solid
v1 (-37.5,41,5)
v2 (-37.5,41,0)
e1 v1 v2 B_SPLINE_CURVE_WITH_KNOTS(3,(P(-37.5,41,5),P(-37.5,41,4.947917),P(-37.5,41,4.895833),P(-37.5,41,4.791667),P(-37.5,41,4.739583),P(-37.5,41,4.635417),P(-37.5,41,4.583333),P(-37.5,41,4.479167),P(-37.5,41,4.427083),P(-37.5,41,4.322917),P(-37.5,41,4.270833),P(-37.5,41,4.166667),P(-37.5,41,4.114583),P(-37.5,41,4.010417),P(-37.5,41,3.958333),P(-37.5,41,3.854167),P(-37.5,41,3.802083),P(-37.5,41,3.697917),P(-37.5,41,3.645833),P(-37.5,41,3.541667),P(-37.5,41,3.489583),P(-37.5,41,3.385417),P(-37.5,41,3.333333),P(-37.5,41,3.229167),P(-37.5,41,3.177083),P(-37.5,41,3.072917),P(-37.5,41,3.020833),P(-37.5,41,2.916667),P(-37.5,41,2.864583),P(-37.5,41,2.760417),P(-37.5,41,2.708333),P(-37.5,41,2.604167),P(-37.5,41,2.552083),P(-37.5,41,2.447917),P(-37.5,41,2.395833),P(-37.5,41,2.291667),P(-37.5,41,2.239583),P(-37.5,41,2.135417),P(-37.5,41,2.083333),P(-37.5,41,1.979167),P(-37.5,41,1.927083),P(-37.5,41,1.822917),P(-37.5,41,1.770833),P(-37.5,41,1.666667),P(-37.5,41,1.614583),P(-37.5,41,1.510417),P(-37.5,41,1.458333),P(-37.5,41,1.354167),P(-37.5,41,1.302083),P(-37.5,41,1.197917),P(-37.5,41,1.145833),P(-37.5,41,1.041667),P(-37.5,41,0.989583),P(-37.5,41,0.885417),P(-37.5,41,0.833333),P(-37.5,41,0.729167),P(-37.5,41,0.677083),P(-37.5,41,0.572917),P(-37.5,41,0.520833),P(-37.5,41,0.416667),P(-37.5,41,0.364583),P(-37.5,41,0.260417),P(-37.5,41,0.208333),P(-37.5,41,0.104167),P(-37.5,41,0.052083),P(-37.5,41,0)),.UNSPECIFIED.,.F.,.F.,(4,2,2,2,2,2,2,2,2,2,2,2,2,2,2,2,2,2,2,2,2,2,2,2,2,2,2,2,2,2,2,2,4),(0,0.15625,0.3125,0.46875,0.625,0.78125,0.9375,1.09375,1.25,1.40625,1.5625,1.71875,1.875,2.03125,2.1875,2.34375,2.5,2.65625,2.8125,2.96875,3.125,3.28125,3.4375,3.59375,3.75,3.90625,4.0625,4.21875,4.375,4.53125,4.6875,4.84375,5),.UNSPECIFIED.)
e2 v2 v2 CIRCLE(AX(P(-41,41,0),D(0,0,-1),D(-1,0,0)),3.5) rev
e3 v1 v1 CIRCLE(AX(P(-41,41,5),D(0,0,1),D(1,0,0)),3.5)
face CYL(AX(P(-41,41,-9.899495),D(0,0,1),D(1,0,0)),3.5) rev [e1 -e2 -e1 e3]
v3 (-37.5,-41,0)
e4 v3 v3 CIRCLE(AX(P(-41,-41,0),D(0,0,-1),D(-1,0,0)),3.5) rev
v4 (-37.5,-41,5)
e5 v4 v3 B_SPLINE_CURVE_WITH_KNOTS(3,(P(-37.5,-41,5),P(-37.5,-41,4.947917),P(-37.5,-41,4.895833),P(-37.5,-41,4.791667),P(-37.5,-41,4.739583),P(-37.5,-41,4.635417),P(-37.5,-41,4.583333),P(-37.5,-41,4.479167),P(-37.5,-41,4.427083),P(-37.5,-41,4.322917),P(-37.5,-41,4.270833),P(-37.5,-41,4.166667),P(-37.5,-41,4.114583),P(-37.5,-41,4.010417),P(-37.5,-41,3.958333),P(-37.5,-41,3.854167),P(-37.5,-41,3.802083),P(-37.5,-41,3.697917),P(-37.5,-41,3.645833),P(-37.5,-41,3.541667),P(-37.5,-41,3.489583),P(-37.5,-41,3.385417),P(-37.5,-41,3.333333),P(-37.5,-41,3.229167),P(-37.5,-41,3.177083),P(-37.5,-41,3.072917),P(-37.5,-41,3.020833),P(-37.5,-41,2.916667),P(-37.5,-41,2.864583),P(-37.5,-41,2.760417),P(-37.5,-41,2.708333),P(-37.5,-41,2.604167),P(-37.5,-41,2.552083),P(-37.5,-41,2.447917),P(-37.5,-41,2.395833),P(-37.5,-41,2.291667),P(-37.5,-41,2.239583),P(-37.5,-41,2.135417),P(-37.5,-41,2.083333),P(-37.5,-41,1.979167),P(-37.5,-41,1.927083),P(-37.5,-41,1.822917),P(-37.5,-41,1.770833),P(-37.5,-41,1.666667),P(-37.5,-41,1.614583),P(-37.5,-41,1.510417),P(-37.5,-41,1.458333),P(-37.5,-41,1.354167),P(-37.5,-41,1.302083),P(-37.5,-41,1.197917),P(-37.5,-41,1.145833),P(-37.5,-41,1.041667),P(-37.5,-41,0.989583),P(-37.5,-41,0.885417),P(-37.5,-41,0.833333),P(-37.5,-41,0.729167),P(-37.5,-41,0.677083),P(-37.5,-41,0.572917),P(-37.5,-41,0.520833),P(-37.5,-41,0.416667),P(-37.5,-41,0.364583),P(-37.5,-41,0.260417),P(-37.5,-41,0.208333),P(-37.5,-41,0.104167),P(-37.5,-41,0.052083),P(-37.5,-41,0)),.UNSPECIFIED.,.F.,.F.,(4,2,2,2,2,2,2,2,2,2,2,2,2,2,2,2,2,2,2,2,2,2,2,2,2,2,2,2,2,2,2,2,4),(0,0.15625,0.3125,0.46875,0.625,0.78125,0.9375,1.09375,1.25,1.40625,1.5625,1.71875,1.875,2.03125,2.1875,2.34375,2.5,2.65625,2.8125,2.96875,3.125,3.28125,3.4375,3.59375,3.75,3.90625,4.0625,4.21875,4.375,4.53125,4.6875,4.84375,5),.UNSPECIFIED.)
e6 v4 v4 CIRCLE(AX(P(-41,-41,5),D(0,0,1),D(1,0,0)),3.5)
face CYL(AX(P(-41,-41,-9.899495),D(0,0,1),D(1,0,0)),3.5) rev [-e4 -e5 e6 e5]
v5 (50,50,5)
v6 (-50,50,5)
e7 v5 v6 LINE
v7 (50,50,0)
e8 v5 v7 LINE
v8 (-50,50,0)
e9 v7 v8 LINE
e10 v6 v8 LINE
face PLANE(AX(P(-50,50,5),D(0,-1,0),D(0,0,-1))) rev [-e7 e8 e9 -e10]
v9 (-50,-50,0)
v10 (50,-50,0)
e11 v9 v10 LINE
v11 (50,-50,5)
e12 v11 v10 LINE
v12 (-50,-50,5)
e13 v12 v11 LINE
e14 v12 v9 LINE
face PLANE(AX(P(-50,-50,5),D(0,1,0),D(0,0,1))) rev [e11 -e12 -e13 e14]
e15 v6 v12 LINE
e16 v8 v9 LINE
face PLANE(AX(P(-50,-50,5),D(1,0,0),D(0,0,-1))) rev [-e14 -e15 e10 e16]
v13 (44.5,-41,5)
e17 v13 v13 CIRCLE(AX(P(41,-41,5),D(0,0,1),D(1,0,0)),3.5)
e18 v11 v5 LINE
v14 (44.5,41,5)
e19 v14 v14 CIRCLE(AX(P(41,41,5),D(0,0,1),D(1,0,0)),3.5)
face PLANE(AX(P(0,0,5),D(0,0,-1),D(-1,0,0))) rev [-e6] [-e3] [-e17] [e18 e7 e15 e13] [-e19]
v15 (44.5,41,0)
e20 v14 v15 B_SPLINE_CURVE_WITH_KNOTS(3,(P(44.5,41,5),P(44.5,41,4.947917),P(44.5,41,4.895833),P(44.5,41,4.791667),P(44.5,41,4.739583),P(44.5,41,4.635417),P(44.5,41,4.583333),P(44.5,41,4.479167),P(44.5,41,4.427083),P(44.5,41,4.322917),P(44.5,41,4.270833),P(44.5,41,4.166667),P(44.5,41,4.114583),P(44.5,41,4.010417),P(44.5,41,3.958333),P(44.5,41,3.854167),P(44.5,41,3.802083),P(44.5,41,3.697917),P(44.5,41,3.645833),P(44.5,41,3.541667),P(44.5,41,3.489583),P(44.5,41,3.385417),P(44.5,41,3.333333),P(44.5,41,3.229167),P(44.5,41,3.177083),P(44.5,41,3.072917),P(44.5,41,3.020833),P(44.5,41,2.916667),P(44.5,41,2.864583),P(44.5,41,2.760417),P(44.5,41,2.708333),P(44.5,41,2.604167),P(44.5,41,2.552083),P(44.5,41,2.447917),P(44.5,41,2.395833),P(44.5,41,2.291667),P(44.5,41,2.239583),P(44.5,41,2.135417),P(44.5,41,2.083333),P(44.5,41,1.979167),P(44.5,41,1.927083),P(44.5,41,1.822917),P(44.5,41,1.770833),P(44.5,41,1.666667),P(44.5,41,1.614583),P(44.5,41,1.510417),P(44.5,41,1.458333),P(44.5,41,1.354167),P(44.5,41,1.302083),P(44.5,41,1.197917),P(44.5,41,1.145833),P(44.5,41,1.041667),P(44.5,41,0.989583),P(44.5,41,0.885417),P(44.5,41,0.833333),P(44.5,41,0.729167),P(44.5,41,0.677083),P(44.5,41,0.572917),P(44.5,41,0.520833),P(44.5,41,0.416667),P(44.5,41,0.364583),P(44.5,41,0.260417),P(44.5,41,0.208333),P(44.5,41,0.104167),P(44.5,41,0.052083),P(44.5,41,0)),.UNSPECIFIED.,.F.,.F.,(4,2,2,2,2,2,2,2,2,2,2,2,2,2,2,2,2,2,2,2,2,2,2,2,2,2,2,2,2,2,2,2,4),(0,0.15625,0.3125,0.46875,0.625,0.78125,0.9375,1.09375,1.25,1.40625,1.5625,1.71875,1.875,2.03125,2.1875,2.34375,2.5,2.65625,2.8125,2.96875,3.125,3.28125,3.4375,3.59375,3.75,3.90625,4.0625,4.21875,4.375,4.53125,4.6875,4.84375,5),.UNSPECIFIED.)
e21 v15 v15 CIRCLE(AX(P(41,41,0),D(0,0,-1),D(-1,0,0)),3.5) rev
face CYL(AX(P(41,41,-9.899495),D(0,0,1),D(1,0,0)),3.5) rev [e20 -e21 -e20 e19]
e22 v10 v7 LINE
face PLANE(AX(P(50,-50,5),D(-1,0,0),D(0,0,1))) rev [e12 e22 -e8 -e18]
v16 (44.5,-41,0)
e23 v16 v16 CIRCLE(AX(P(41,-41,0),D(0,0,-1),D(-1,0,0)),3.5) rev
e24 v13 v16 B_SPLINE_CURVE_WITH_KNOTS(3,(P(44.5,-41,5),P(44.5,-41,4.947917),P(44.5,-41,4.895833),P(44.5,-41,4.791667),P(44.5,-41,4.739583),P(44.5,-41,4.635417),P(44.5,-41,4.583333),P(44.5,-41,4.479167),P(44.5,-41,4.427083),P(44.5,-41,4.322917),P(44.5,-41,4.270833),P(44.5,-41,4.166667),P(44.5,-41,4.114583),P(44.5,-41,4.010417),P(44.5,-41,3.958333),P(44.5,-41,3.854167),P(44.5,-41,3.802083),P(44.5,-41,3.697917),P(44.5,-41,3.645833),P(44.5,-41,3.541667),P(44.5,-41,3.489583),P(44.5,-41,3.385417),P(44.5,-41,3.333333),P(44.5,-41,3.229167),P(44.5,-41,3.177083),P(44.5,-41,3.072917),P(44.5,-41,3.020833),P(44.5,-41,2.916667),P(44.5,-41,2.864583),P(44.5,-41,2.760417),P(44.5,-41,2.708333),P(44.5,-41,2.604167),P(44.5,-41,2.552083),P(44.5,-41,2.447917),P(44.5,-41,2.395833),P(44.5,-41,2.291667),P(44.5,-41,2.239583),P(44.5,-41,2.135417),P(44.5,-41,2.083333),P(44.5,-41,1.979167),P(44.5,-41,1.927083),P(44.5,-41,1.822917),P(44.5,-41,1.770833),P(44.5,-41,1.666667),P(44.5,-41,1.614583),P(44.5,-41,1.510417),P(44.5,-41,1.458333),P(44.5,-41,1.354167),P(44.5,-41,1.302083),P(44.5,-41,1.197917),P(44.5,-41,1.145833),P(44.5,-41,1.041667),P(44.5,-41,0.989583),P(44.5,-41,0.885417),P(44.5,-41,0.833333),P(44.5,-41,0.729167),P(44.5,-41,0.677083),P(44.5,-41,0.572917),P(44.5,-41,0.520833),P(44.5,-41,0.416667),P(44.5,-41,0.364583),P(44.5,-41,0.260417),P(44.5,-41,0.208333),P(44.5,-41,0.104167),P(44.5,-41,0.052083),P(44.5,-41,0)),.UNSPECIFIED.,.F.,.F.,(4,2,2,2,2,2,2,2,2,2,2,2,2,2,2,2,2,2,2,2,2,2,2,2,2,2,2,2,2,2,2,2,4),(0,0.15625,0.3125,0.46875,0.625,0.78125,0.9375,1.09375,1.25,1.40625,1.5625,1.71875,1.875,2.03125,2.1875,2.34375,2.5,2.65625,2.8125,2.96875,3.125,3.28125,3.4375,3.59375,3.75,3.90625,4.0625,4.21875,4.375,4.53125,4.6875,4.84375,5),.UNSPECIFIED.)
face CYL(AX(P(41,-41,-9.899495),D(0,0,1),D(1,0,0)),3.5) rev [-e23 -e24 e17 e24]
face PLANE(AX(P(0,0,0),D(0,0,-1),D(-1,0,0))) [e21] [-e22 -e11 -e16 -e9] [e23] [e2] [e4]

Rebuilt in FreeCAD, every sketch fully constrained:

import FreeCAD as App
import Part
import Sketcher

V = App.Vector
Q = App.Units.Quantity


def add_polygon(sketch, points):
    """Adds a closed chain of lines whose ends are joined by coincident constraints."""
    first, n = sketch.GeometryCount, len(points)
    for a, b in zip(points, points[1:] + points[:1]):
        sketch.addGeometry(Part.LineSegment(App.Vector(*a, 0), App.Vector(*b, 0)), False)
    for i in range(n):
        sketch.addConstraint(Sketcher.Constraint("Coincident", first + i, 2, first + (i + 1) % n, 1))

doc = App.newDocument("Part")
params = doc.addObject("Spreadsheet::Sheet", "Params")
for row, (alias, value) in enumerate([
    ("sketch1_width", "100 mm"),
    ("pad1_length", "5 mm"),
    ("sketch2_diameter", "7 mm"),
    ("pocket1_length", "5 mm"),
], start=1):
    params.set(f"A{row}", alias)
    params.set(f"B{row}", "=" + value)
    params.setAlias(f"B{row}", alias)

body = doc.addObject("PartDesign::Body", "Body")

# Sketch on XY plane
sketch1 = body.newObject("Sketcher::SketchObject", "Sketch")
sketch1.AttachmentSupport = (doc.getObject("XY_Plane"), [""])
sketch1.MapMode = "FlatFace"
add_polygon(sketch1, [(-50, 50), (-50, -50), (50, -50), (50, 50)])  # lines 0-3
sketch1.addConstraint(Sketcher.Constraint("Vertical", 0))
sketch1.addConstraint(Sketcher.Constraint("Horizontal", 1))
sketch1.addConstraint(Sketcher.Constraint("Vertical", 2))
sketch1.addConstraint(Sketcher.Constraint("Horizontal", 3))
sketch1.addConstraint(Sketcher.Constraint("Symmetric", 0, 2, 2, 2, -1, 1))
sketch1.addConstraint(Sketcher.Constraint("Equal", 3, 0))
sketch1.addConstraint(Sketcher.Constraint("DistanceX", 1, 1, 1, 2, Q("100 mm")))
sketch1.setExpression("Constraints[10]", "Params.sketch1_width")
pad1 = body.newObject("PartDesign::Pad", "Pad")
pad1.Profile = sketch1
pad1.setExpression("Length", "Params.pad1_length")

# Sketch on XY plane
sketch2 = body.newObject("Sketcher::SketchObject", "Sketch001")
sketch2.AttachmentSupport = (doc.getObject("XY_Plane"), [""])
sketch2.MapMode = "FlatFace"
sketch2.AttachmentOffset = App.Placement(V(0, 0, 5), App.Rotation())
sketch2.addGeometry(Part.Circle(V(-41, 41, 0), V(0, 0, 1), 3.5), False)
sketch2.addGeometry(Part.Circle(V(-41, -41, 0), V(0, 0, 1), 3.5), False)
sketch2.addGeometry(Part.Circle(V(41, -41, 0), V(0, 0, 1), 3.5), False)
sketch2.addGeometry(Part.Circle(V(41, 41, 0), V(0, 0, 1), 3.5), False)
sketch2.addConstraint(Sketcher.Constraint("Equal", 0, 1))
sketch2.addConstraint(Sketcher.Constraint("Equal", 1, 2))
sketch2.addConstraint(Sketcher.Constraint("Equal", 2, 3))
sketch2.addConstraint(Sketcher.Constraint("Symmetric", 0, 3, 2, 3, -1, 1))
sketch2.addConstraint(Sketcher.Constraint("Symmetric", 1, 3, 3, 3, -1, 1))
sketch2.addConstraint(Sketcher.Constraint("Symmetric", 1, 3, 2, 3, -2))
sketch2.addConstraint(Sketcher.Constraint("Diameter", 0, Q("7 mm")))
sketch2.addConstraint(Sketcher.Constraint("DistanceX", 0, 3, -1, 1, Q("41 mm")))
sketch2.addConstraint(Sketcher.Constraint("DistanceY", -1, 1, 0, 3, Q("41 mm")))
sketch2.setExpression("Constraints[6]", "Params.sketch2_diameter")
pocket1 = body.newObject("PartDesign::Pocket", "Pocket")
pocket1.Profile = sketch2
pocket1.setExpression("Length", "Params.pocket1_length")

doc.recompute()
